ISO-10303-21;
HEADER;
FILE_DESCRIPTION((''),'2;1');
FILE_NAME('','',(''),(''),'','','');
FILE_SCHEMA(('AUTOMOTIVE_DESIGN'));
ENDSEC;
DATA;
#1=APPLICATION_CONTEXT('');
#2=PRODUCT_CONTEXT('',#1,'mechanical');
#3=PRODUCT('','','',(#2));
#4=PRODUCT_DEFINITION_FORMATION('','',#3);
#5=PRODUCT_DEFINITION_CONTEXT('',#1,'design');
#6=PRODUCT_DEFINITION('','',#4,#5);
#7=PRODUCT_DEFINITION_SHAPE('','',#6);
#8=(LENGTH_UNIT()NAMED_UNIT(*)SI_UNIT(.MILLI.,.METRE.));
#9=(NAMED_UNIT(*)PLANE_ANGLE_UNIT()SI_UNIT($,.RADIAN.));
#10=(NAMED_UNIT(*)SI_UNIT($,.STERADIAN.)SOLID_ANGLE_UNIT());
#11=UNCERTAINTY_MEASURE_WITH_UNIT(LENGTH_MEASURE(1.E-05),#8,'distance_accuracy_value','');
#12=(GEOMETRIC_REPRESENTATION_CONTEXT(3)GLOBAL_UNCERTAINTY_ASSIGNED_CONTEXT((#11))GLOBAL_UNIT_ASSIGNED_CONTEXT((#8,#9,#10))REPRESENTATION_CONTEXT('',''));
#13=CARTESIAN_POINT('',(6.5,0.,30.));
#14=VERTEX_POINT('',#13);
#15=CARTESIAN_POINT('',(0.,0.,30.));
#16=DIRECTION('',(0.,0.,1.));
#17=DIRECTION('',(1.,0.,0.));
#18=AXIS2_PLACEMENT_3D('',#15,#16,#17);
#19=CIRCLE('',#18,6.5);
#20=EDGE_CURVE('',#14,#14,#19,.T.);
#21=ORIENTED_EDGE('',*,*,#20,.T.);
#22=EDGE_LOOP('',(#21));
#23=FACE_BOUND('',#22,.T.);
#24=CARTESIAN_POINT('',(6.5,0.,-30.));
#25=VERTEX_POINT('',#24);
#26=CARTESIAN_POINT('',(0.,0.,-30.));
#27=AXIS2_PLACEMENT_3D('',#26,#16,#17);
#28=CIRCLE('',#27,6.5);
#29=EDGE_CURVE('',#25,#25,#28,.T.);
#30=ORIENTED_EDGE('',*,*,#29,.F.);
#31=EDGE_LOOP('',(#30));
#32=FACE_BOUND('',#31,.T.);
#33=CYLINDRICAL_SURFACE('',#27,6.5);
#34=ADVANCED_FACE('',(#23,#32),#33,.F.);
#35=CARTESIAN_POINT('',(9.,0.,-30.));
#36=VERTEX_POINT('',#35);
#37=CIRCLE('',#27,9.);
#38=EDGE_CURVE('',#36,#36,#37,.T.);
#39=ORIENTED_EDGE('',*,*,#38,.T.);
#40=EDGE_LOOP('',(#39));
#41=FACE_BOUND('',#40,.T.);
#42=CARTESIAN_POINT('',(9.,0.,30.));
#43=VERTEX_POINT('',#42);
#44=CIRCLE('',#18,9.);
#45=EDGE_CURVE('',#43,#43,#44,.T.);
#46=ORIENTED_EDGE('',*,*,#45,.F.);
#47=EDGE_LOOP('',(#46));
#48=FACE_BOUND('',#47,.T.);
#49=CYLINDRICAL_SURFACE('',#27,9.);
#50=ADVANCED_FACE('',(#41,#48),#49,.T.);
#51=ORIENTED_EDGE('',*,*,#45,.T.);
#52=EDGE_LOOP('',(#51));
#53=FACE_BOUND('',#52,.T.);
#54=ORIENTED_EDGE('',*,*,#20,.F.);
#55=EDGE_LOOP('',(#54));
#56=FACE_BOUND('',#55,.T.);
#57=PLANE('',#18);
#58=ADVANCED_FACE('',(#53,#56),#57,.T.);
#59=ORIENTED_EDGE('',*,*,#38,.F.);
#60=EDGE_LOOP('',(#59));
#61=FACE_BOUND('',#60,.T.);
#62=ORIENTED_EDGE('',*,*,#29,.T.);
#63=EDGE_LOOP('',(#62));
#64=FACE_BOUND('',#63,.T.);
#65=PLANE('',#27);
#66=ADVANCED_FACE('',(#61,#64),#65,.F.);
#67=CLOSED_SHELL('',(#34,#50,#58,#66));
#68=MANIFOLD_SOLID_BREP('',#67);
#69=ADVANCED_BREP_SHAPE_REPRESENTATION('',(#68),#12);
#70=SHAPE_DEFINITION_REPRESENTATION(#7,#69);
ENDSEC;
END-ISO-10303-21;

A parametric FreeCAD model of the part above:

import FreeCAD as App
import Part
import Sketcher

V = App.Vector
Q = App.Units.Quantity

doc = App.newDocument("Part")
body = doc.addObject("PartDesign::Body", "Body")

sketch1 = body.newObject("Sketcher::SketchObject", "Sketch")
sketch1.AttachmentSupport = (doc.getObject("XY_Plane"), [""])
sketch1.MapMode = "FlatFace"
sketch1.addGeometry([
    Part.Circle(V(0, 0, 0), V(0, 0, 1), 9),
    Part.Circle(V(0, 0, 0), V(0, 0, 1), 6.5),
], False)
sketch1.addConstraint([
    Sketcher.Constraint("Coincident", 0, 3, -1, 1),
    Sketcher.Constraint("Coincident", 1, 3, -1, 1),
    Sketcher.Constraint("Diameter", 0, Q("18 mm")),
    Sketcher.Constraint("Diameter", 1, Q("13 mm")),
])
pad1 = body.newObject("PartDesign::Pad", "Pad")
pad1.Profile = sketch1
pad1.Type = "TwoLengths"
pad1.Length = 30
pad1.Length2 = 30

doc.recompute()
